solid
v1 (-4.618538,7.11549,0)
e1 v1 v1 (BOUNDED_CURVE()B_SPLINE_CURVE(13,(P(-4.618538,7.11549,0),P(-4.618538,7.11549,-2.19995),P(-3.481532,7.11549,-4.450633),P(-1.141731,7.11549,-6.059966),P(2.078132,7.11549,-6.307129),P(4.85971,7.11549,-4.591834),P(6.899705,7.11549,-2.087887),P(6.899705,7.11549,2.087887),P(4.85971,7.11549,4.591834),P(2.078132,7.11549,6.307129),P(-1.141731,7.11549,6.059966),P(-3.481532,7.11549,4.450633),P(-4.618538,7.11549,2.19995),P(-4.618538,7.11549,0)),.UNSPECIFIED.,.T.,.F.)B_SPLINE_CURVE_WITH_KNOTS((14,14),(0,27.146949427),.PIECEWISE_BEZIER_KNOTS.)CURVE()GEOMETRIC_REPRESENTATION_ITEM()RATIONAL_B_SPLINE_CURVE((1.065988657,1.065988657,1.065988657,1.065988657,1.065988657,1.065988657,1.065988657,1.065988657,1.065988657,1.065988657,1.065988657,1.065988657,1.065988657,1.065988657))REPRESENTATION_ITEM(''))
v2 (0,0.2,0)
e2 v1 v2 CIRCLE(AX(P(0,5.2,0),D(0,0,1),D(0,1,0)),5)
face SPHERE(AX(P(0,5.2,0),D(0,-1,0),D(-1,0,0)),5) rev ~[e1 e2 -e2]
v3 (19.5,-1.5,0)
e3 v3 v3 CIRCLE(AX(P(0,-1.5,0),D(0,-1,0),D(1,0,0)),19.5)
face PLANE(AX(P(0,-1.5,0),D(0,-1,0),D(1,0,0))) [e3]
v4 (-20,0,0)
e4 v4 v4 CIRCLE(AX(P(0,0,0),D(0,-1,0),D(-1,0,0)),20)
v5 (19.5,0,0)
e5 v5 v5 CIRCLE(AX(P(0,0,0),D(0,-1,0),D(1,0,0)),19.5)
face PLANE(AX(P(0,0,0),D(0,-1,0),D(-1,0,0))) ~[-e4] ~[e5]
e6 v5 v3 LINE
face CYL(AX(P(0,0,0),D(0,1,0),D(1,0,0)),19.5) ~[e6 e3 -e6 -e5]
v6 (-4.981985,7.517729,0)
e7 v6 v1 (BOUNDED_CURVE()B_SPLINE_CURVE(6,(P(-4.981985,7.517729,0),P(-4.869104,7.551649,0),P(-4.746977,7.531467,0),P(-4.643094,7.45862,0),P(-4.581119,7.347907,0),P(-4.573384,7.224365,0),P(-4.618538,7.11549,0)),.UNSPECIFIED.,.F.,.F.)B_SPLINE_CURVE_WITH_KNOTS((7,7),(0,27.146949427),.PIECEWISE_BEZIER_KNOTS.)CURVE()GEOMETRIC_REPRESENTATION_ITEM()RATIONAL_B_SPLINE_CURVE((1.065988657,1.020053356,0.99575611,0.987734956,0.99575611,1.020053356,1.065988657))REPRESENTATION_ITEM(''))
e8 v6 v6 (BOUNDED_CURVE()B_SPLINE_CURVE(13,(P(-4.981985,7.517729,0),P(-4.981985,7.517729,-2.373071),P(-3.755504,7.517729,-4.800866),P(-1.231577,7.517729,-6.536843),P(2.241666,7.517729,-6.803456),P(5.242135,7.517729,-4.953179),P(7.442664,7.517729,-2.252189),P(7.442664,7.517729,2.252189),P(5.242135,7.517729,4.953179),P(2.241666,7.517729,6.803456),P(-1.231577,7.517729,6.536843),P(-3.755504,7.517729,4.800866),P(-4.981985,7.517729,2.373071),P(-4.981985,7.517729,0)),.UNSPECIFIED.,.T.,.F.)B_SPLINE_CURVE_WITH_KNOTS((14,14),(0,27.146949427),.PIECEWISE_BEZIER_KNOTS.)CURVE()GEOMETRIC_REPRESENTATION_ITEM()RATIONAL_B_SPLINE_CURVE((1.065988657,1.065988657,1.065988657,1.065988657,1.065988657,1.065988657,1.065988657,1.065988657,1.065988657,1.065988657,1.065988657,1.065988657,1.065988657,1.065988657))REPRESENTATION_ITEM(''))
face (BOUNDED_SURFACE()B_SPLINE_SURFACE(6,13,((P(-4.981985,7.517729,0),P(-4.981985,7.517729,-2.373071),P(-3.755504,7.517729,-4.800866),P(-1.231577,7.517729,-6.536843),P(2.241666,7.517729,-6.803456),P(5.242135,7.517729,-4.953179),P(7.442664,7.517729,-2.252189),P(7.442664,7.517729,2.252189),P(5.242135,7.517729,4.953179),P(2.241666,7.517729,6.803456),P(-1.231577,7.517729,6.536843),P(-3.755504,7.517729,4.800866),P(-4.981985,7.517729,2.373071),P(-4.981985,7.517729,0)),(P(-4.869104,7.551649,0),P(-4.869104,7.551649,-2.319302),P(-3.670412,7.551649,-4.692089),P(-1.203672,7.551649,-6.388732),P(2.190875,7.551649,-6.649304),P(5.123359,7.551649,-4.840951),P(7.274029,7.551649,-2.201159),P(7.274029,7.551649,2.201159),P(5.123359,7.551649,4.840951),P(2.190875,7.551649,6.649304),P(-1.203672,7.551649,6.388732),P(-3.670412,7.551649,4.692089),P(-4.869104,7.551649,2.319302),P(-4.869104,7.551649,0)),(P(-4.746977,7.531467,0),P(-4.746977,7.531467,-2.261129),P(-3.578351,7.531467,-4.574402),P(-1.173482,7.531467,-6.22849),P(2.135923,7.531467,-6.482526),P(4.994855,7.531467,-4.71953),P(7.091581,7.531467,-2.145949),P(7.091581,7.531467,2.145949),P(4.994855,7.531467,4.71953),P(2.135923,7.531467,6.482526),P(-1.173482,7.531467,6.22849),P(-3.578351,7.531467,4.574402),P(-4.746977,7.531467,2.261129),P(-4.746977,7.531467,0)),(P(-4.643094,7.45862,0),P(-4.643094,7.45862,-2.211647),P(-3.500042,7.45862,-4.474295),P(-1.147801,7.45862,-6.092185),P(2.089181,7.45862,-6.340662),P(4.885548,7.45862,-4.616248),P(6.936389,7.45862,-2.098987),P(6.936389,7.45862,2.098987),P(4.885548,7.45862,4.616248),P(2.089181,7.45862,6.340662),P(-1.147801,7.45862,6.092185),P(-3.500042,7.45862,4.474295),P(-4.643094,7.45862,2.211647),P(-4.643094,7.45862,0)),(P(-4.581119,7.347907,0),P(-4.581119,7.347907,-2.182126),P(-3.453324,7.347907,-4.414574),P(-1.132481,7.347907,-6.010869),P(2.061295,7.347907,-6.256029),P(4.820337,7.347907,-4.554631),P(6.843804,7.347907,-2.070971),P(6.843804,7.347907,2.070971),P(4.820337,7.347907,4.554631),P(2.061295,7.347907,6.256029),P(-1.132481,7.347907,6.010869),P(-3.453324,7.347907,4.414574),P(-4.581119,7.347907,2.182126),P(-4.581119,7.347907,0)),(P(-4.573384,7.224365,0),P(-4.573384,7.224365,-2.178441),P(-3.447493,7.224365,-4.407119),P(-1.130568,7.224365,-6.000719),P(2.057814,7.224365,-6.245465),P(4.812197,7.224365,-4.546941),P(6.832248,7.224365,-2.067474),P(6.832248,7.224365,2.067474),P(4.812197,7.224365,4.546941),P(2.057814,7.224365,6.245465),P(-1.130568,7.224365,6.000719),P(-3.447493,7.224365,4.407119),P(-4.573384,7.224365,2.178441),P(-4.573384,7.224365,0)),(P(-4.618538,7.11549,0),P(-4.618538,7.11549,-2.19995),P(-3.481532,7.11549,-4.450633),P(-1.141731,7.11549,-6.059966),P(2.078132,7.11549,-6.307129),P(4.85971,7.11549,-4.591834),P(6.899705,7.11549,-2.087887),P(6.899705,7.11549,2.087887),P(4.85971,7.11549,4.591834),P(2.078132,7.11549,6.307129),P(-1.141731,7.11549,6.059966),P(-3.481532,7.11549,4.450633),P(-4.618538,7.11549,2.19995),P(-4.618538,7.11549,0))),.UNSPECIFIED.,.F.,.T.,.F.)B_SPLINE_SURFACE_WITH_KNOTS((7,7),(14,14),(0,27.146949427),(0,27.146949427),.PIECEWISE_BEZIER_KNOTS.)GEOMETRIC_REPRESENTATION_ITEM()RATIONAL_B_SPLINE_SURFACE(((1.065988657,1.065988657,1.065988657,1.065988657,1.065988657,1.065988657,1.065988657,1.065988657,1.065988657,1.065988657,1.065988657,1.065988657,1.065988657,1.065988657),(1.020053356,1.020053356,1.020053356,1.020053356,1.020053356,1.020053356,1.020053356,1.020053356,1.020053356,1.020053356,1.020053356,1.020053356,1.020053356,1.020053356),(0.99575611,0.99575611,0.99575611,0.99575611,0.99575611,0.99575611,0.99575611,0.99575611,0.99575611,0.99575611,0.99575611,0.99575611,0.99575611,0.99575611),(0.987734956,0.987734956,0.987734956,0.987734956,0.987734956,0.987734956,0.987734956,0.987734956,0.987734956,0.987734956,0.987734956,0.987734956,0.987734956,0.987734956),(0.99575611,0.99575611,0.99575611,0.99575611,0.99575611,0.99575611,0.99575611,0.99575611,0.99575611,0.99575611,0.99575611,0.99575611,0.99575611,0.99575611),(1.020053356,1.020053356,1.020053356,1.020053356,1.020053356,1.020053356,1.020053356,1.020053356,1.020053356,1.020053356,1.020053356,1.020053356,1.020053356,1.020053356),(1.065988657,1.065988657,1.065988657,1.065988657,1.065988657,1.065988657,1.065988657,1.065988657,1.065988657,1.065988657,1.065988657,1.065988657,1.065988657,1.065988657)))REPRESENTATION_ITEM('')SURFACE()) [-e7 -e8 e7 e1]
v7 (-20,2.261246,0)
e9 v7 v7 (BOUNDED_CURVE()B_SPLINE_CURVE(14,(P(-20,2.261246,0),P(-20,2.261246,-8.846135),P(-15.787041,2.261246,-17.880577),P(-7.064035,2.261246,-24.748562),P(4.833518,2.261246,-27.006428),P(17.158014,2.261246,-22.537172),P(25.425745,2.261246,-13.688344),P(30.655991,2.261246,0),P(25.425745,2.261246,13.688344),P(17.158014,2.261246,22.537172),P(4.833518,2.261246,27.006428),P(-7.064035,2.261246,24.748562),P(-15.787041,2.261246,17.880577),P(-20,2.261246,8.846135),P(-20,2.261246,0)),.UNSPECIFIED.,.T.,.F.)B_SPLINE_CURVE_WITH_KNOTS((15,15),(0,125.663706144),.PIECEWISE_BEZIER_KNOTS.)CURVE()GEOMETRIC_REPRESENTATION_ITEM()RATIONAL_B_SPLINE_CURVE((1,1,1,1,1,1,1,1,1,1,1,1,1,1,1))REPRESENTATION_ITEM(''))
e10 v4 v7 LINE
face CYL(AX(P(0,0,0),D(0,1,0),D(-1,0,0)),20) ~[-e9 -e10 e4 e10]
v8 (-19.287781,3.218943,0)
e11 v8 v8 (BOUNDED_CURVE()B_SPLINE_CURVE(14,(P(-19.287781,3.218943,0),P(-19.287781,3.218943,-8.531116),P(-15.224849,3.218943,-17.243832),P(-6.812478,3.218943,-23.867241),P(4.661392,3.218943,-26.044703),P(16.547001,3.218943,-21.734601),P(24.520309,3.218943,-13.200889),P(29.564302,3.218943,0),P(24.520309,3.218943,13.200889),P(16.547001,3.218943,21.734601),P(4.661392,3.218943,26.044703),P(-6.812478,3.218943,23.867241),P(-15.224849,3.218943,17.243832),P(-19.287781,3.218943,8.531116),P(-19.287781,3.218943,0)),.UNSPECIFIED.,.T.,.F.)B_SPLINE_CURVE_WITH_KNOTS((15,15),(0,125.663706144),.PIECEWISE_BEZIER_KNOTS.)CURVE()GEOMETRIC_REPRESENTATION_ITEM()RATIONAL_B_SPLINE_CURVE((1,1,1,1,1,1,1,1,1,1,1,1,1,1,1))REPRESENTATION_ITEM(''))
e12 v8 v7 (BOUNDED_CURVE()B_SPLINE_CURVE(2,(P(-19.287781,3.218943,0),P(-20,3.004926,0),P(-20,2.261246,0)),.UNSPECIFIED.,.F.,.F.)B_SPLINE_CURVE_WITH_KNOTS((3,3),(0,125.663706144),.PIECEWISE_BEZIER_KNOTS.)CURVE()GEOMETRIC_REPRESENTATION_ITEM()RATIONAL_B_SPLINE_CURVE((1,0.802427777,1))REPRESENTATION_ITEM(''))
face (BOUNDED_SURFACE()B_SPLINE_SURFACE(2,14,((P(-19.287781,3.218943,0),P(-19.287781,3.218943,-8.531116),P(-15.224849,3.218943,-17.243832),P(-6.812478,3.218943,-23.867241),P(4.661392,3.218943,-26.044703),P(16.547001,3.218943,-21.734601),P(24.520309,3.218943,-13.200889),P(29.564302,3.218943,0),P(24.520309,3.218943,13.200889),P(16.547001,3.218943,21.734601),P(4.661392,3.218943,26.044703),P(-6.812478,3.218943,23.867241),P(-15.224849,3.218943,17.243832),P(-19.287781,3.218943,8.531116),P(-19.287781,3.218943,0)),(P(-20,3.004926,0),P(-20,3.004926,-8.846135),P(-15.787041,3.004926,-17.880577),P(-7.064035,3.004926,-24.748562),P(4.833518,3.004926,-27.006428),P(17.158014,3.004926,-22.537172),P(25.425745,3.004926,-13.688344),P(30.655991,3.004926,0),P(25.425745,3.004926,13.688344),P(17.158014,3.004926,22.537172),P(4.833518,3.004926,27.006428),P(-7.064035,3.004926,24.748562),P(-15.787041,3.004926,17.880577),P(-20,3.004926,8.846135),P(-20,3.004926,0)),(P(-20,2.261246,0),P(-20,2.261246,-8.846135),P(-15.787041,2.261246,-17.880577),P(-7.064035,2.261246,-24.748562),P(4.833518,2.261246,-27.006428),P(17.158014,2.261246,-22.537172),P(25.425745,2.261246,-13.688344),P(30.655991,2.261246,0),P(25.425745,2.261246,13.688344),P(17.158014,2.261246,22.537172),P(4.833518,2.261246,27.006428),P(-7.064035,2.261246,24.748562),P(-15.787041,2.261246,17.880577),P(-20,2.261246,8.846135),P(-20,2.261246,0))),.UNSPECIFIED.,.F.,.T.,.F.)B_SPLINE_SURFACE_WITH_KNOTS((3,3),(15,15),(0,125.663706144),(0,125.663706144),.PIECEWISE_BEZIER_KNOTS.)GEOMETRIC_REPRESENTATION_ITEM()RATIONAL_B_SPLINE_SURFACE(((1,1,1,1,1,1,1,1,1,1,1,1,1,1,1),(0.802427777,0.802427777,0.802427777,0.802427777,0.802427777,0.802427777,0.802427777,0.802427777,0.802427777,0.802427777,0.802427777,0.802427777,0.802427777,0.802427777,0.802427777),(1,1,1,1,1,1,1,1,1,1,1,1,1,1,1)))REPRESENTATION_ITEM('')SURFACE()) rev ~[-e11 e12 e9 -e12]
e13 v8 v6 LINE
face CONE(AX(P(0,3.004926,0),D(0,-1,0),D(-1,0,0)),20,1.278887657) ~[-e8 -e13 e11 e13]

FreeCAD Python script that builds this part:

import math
import FreeCAD as App
import Part
import Sketcher
Q = App.Units.Quantity


def edges_at(feature, points):
    """Names of the edges that pass closest to the given points."""
    edges = feature.Shape.Edges
    near = lambda p: min(range(len(edges)), key=lambda i: edges[i].distToShape(Part.Vertex(*p))[0])
    return sorted({f"Edge{near(p) + 1}" for p in points})

doc = App.newDocument("Part")
body = doc.addObject("PartDesign::Body", "Body")

# Sketch on XY plane
sketch1 = doc.addObject("Sketcher::SketchObject", "Sketch")
body.addObject(sketch1)
sketch1.AttachmentSupport = (doc.XY_Plane, [""])
sketch1.MapMode = "FlatFace"
sketch1.addGeometry(Part.LineSegment(App.Vector(-20, 0, 0), App.Vector(0, 0, 0)), False)
sketch1.addGeometry(Part.LineSegment(App.Vector(0, 0, 0), App.Vector(0, 9, 0)), False)
sketch1.addGeometry(Part.LineSegment(App.Vector(0, 9, 0), App.Vector(-20, 3, 0)), False)
sketch1.addGeometry(Part.LineSegment(App.Vector(-20, 3, 0), App.Vector(-20, 0, 0)), False)
sketch1.addConstraint(Sketcher.Constraint("Coincident", 0, 2, 1, 1))
sketch1.addConstraint(Sketcher.Constraint("Coincident", 1, 2, 2, 1))
sketch1.addConstraint(Sketcher.Constraint("Coincident", 2, 2, 3, 1))
sketch1.addConstraint(Sketcher.Constraint("Coincident", 3, 2, 0, 1))
sketch1.addConstraint(Sketcher.Constraint("Horizontal", 0))
sketch1.addConstraint(Sketcher.Constraint("Vertical", 1))
sketch1.addConstraint(Sketcher.Constraint("Vertical", 3))
sketch1.addConstraint(Sketcher.Constraint("Coincident", 0, 2, -1, 1))
sketch1.addConstraint(Sketcher.Constraint("DistanceX", 0, 1, 0, 2, Q("20 mm")))
sketch1.addConstraint(Sketcher.Constraint("DistanceY", 1, 1, 1, 2, Q("9.014778 mm")))
sketch1.addConstraint(Sketcher.Constraint("DistanceY", 3, 2, 3, 1, Q("3.004926 mm")))
revolution = doc.addObject("PartDesign::Revolution", "Revolution")
body.addObject(revolution)
revolution.Profile = sketch1
revolution.ReferenceAxis = (sketch1, ["V_Axis"])
revolution.Angle = 360

# Sketch on XY plane
sketch2 = doc.addObject("Sketcher::SketchObject", "Sketch001")
body.addObject(sketch2)
sketch2.AttachmentSupport = (doc.XY_Plane, [""])
sketch2.MapMode = "FlatFace"
sketch2.addGeometry(Part.LineSegment(App.Vector(0, 0, 0), App.Vector(0, 10, 0)), False)
sketch2.addGeometry(Part.ArcOfCircle(Part.Circle(App.Vector(0, 5, 0), App.Vector(0, 0, 1), 5), math.radians(90), math.radians(270)), False)
sketch2.addConstraint(Sketcher.Constraint("Coincident", 0, 1, 1, 2))
sketch2.addConstraint(Sketcher.Constraint("Coincident", 1, 1, 0, 2))
sketch2.addConstraint(Sketcher.Constraint("Vertical", 0))
sketch2.addConstraint(Sketcher.Constraint("PointOnObject", 1, 3, -2))
sketch2.addConstraint(Sketcher.Constraint("PointOnObject", 0, 1, -2))
sketch2.addConstraint(Sketcher.Constraint("Radius", 1, Q("5 mm")))
sketch2.addConstraint(Sketcher.Constraint("DistanceY", -1, 1, 1, 3, Q("5.2 mm")))
groove = doc.addObject("PartDesign::Groove", "Groove")
body.addObject(groove)
groove.Profile = sketch2
groove.ReferenceAxis = (sketch2, ["V_Axis"])
groove.Angle = 360
doc.recompute()

fillet = doc.addObject("PartDesign::Fillet", "Fillet")
body.addObject(fillet)
fillet.Base = (groove, edges_at(groove, [(4.321, 7.716, 0)]))
fillet.Radius = 0.3

# Sketch on XZ plane
sketch3 = doc.addObject("Sketcher::SketchObject", "Sketch002")
body.addObject(sketch3)
sketch3.AttachmentSupport = (doc.XZ_Plane, [""])
sketch3.MapMode = "FlatFace"
sketch3.addGeometry(Part.Circle(App.Vector(0, 0, 0), App.Vector(0, 0, 1), 20), False)
sketch3.addConstraint(Sketcher.Constraint("Coincident", 0, 3, -1, 1))
sketch3.addConstraint(Sketcher.Constraint("Diameter", 0, Q("39 mm")))
pad1 = doc.addObject("PartDesign::Pad", "Pad")
body.addObject(pad1)
pad1.Profile = sketch3
pad1.Length = 1.5
doc.recompute()

fillet2 = doc.addObject("PartDesign::Fillet", "Fillet001")
body.addObject(fillet2)
fillet2.Base = (pad1, edges_at(pad1, [(20, 3.005, 0)]))
fillet2.Radius = 1

doc.recompute()
